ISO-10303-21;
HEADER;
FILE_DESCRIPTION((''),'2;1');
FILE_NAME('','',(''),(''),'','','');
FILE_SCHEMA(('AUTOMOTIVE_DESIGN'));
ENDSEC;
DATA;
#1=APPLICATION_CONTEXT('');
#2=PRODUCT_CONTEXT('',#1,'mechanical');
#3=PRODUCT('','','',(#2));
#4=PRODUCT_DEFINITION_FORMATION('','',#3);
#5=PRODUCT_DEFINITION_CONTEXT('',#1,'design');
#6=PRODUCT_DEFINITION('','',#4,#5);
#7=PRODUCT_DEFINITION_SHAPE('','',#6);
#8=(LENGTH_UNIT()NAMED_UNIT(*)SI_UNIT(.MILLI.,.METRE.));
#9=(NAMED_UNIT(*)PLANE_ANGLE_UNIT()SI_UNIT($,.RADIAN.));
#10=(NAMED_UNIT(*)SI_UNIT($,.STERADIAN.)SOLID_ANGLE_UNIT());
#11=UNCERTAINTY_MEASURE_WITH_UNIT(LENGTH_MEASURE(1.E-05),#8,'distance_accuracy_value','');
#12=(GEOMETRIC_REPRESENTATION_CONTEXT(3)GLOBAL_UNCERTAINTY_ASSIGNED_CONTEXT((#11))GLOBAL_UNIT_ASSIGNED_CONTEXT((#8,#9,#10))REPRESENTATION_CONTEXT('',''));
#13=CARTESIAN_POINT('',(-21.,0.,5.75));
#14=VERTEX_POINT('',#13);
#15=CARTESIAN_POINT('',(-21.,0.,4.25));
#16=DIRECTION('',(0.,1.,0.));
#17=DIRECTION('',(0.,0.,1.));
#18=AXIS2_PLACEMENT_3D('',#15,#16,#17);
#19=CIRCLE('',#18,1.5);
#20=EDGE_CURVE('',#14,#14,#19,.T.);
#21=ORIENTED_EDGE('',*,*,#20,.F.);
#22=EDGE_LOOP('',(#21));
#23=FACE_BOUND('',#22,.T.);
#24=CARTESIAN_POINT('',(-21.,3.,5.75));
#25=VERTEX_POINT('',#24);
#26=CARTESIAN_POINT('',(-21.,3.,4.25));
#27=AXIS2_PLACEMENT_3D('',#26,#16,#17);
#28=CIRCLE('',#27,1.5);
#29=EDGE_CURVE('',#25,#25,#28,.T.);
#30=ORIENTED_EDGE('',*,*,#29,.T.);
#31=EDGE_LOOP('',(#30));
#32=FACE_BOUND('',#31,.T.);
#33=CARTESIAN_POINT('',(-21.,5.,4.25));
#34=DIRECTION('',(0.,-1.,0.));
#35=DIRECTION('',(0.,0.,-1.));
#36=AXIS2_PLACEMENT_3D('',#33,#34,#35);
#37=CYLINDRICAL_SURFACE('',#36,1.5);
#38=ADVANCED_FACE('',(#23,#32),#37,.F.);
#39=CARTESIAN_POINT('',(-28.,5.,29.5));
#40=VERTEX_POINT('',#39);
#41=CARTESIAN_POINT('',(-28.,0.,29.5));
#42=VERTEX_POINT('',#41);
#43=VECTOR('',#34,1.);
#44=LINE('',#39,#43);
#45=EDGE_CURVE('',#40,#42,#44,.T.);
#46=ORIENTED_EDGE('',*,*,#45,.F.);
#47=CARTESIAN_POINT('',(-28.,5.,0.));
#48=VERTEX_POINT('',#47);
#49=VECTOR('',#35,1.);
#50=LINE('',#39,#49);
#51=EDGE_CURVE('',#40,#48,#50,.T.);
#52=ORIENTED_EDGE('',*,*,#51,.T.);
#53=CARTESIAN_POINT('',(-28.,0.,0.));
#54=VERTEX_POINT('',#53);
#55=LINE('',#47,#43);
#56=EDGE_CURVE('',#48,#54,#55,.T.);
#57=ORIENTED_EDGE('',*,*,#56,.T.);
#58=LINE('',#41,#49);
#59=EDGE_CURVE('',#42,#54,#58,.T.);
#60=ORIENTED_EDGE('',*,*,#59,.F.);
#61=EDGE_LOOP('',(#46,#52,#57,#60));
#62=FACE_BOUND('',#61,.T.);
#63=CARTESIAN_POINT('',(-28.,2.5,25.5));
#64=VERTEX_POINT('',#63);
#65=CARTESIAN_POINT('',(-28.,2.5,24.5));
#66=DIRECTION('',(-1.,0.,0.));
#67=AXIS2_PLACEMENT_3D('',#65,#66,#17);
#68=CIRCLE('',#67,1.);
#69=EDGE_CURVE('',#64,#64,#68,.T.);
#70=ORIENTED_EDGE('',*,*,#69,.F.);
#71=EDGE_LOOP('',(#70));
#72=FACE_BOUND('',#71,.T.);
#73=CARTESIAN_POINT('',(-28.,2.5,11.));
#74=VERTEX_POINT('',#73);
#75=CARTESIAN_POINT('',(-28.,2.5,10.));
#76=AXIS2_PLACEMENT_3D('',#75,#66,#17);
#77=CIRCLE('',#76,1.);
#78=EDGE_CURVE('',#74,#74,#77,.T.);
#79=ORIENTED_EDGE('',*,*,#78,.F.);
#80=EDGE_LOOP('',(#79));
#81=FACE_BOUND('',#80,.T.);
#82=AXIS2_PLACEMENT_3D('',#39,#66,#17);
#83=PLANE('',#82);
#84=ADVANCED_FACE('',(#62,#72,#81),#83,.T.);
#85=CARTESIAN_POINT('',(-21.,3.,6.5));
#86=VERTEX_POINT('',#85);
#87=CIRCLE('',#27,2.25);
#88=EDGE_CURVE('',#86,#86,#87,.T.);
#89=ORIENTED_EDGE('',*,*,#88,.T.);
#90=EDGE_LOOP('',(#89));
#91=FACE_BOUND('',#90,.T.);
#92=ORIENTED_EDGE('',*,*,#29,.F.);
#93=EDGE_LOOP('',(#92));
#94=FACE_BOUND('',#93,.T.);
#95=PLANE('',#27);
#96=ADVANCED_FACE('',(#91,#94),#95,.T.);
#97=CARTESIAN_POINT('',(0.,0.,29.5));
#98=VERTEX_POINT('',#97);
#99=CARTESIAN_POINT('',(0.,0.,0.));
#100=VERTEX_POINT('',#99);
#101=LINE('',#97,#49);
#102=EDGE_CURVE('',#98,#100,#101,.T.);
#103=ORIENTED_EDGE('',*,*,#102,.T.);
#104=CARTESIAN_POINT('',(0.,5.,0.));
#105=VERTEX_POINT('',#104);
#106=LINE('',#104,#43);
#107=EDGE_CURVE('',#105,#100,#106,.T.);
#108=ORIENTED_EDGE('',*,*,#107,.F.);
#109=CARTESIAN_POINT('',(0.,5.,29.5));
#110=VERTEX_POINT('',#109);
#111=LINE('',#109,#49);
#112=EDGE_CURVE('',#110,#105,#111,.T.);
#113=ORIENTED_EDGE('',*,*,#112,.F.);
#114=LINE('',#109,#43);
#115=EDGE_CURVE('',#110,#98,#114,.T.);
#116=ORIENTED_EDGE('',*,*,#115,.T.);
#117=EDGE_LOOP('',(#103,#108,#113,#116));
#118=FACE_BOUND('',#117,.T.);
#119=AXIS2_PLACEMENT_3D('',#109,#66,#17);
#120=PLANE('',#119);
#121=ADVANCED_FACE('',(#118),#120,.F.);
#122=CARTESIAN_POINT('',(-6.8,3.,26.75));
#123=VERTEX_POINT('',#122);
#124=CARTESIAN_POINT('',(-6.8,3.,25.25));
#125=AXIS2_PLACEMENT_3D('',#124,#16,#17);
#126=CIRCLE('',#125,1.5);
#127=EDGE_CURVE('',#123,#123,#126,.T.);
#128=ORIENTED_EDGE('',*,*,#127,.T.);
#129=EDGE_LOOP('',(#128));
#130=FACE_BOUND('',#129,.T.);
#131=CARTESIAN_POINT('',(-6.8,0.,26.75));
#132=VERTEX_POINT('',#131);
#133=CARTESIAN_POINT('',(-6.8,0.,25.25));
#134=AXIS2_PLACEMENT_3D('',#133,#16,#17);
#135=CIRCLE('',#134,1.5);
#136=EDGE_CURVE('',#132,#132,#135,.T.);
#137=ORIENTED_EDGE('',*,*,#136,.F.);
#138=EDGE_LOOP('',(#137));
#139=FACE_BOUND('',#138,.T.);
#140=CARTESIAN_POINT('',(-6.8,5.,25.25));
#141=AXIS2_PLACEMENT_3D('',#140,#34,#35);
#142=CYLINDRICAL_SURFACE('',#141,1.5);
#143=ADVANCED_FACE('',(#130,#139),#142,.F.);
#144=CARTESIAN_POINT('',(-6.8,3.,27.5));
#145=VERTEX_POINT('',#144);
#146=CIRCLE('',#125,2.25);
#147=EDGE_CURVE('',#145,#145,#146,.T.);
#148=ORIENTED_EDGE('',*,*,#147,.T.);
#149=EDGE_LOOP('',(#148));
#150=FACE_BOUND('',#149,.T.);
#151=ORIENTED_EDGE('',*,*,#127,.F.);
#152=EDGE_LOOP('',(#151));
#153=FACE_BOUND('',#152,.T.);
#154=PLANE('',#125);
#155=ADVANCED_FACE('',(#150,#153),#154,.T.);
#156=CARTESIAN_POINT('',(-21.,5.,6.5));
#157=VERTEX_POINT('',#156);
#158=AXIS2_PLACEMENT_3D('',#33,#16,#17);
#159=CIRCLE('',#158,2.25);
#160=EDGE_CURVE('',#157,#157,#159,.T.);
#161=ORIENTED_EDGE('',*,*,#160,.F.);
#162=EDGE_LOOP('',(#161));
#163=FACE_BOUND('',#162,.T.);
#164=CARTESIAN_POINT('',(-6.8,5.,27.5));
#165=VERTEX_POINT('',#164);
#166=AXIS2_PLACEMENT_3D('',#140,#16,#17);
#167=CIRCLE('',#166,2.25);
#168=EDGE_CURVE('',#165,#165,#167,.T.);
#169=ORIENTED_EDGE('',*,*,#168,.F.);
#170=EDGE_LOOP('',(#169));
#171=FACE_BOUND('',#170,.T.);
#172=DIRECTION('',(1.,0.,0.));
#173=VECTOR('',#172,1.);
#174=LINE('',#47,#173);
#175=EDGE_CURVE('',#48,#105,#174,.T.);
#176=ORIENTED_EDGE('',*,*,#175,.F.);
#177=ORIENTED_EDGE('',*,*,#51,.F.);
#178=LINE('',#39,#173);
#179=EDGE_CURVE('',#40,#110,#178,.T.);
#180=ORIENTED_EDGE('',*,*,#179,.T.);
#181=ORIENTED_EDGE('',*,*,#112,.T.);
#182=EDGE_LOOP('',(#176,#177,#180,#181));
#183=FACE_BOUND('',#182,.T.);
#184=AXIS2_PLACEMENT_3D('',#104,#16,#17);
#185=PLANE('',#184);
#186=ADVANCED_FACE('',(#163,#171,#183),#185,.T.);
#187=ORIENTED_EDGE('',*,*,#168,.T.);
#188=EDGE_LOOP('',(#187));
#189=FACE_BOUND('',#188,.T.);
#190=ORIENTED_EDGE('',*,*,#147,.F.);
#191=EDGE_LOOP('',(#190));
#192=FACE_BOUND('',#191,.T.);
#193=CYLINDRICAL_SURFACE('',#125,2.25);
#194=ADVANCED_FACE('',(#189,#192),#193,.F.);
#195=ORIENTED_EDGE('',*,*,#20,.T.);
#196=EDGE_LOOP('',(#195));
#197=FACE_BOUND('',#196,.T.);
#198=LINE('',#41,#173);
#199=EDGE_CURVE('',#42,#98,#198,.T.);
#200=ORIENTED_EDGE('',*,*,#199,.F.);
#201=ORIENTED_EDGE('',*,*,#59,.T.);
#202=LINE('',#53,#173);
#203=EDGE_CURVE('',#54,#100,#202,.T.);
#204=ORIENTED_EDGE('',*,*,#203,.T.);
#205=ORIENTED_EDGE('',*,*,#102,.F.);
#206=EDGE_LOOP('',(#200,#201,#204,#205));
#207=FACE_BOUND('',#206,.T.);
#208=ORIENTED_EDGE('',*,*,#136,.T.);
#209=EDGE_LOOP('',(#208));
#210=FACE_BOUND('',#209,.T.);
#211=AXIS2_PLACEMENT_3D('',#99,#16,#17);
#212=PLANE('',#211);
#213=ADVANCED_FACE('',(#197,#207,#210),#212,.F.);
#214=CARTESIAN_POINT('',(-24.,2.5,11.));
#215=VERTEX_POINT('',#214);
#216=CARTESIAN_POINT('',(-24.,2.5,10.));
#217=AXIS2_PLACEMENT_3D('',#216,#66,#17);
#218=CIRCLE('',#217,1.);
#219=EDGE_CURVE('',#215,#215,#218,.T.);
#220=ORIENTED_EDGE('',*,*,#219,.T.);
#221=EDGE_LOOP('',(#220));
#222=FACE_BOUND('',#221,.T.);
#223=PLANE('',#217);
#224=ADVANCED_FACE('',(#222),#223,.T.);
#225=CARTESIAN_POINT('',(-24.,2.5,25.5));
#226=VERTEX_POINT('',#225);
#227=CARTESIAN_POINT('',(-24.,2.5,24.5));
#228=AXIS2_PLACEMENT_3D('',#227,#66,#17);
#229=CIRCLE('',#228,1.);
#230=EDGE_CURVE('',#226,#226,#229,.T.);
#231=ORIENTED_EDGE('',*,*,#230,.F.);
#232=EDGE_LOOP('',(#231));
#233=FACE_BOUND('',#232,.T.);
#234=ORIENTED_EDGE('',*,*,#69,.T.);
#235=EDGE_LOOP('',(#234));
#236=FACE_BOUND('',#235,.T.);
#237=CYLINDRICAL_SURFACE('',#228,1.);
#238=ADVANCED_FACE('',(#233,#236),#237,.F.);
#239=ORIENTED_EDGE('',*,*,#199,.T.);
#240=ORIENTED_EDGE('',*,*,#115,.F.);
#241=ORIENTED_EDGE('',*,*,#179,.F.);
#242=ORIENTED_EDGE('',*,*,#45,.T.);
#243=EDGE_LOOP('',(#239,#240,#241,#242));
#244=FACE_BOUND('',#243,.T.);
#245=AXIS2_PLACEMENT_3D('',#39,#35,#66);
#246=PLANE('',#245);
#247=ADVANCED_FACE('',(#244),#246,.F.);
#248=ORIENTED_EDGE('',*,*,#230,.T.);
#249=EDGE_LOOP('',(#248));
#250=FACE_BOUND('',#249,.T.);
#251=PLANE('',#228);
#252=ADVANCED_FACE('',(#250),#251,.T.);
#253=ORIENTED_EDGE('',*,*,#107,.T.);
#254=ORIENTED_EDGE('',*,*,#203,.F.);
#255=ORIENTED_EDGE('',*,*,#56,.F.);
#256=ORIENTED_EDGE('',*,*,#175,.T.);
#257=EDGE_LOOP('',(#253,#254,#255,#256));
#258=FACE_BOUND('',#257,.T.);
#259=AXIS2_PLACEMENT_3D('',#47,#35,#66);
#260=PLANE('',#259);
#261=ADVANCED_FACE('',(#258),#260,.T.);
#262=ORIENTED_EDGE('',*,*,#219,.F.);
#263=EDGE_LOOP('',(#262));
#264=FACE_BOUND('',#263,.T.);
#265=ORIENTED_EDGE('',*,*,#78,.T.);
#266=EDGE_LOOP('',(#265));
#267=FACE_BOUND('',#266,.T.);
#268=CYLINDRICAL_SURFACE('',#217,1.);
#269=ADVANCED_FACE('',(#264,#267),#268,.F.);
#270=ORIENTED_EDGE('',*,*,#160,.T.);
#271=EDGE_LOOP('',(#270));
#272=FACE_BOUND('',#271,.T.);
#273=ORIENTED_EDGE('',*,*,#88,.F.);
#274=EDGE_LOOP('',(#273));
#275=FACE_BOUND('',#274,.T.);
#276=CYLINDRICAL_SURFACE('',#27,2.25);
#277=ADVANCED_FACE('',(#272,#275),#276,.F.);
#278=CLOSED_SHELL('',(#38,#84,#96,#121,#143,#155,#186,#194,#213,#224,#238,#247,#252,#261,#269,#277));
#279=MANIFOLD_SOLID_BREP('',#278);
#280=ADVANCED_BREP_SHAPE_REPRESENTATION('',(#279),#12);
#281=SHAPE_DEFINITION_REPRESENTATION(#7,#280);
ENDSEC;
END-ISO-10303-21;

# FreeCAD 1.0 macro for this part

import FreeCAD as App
import Part
import Sketcher

doc = App.newDocument("Part")
body = doc.addObject("PartDesign::Body", "Body")

# Sketch on XZ plane
sketch1 = doc.addObject("Sketcher::SketchObject", "Sketch")
body.addObject(sketch1)
sketch1.AttachmentSupport = (doc.XZ_Plane, [""])
sketch1.MapMode = "FlatFace"
sketch1.addGeometry(Part.LineSegment(App.Vector(-28, 0, 0), App.Vector(-28, 30, 0)), False)
sketch1.addGeometry(Part.LineSegment(App.Vector(-28, 30, 0), App.Vector(0, 30, 0)), False)
sketch1.addGeometry(Part.LineSegment(App.Vector(0, 30, 0), App.Vector(0, 0, 0)), False)
sketch1.addGeometry(Part.LineSegment(App.Vector(0, 0, 0), App.Vector(-28, 0, 0)), False)
sketch1.addConstraint(Sketcher.Constraint("Coincident", 0, 2, 1, 1))
sketch1.addConstraint(Sketcher.Constraint("Coincident", 1, 2, 2, 1))
sketch1.addConstraint(Sketcher.Constraint("Coincident", 2, 2, 3, 1))
sketch1.addConstraint(Sketcher.Constraint("Coincident", 3, 2, 0, 1))
sketch1.addConstraint(Sketcher.Constraint("Vertical", 0))
sketch1.addConstraint(Sketcher.Constraint("Horizontal", 1))
sketch1.addConstraint(Sketcher.Constraint("Vertical", 2))
sketch1.addConstraint(Sketcher.Constraint("Horizontal", 3))
sketch1.addConstraint(Sketcher.Constraint("Coincident", 2, 2, -1, 1))
sketch1.addConstraint(Sketcher.Constraint("DistanceX", 1, 1, 1, 2, 28.0))
sketch1.addConstraint(Sketcher.Constraint("DistanceY", 0, 1, 0, 2, 29.5))
pad1 = doc.addObject("PartDesign::Pad", "Pad")
body.addObject(pad1)
pad1.Profile = sketch1
pad1.Length = 5
pad1.Reversed = True

# Sketch on XZ plane
sketch2 = doc.addObject("Sketcher::SketchObject", "Sketch001")
body.addObject(sketch2)
sketch2.AttachmentSupport = (doc.XZ_Plane, [""])
sketch2.MapMode = "FlatFace"
sketch2.addGeometry(Part.Circle(App.Vector(-21, 4.2, 0), App.Vector(0, 0, 1), 1.5), False)
sketch2.addGeometry(Part.Circle(App.Vector(-6.8, 25.2, 0), App.Vector(0, 0, 1), 1.5), False)
sketch2.addConstraint(Sketcher.Constraint("Equal", 0, 1))
sketch2.addConstraint(Sketcher.Constraint("Diameter", 0, 3.0))
sketch2.addConstraint(Sketcher.Constraint("DistanceX", 0, 3, -1, 1, 21.0))
sketch2.addConstraint(Sketcher.Constraint("DistanceY", 0, 3, 1, 3, 21.0))
sketch2.addConstraint(Sketcher.Constraint("DistanceX", 1, 3, -1, 1, 6.8))
sketch2.addConstraint(Sketcher.Constraint("DistanceY", -1, 1, 0, 3, 4.25))
pocket1 = doc.addObject("PartDesign::Pocket", "Pocket")
body.addObject(pocket1)
pocket1.Profile = sketch2
pocket1.Type = "ThroughAll"

# Sketch on XZ plane
sketch3 = doc.addObject("Sketcher::SketchObject", "Sketch002")
body.addObject(sketch3)
sketch3.AttachmentSupport = (doc.XZ_Plane, [""])
sketch3.MapMode = "FlatFace"
sketch3.AttachmentOffset = App.Placement(App.Vector(0, 0, -5), App.Rotation())
sketch3.addGeometry(Part.Circle(App.Vector(-21, 4.2, 0), App.Vector(0, 0, 1), 2.2), False)
sketch3.addGeometry(Part.Circle(App.Vector(-6.8, 25.2, 0), App.Vector(0, 0, 1), 2.2), False)
sketch3.addConstraint(Sketcher.Constraint("Equal", 0, 1))
sketch3.addConstraint(Sketcher.Constraint("Diameter", 0, 4.5))
sketch3.addConstraint(Sketcher.Constraint("DistanceX", 0, 3, -1, 1, 21.0))
sketch3.addConstraint(Sketcher.Constraint("DistanceY", 0, 3, 1, 3, 21.0))
sketch3.addConstraint(Sketcher.Constraint("DistanceX", 1, 3, -1, 1, 6.8))
sketch3.addConstraint(Sketcher.Constraint("DistanceY", -1, 1, 0, 3, 4.25))
pocket2 = doc.addObject("PartDesign::Pocket", "Pocket001")
body.addObject(pocket2)
pocket2.Profile = sketch3
pocket2.Length = 2
pocket2.Reversed = True

# Sketch on YZ plane
sketch4 = doc.addObject("Sketcher::SketchObject", "Sketch003")
body.addObject(sketch4)
sketch4.AttachmentSupport = (doc.YZ_Plane, [""])
sketch4.MapMode = "FlatFace"
sketch4.AttachmentOffset = App.Placement(App.Vector(0, 0, -28), App.Rotation())
sketch4.addGeometry(Part.Circle(App.Vector(2.5, 10, 0), App.Vector(0, 0, 1), 1), False)
sketch4.addGeometry(Part.Circle(App.Vector(2.5, 24.5, 0), App.Vector(0, 0, 1), 1), False)
sketch4.addConstraint(Sketcher.Constraint("Equal", 0, 1))
sketch4.addConstraint(Sketcher.Constraint("Vertical", 0, 3, 1, 3))
sketch4.addConstraint(Sketcher.Constraint("Diameter", 0, 2.0))
sketch4.addConstraint(Sketcher.Constraint("DistanceY", -1, 1, 0, 3, 10.0))
sketch4.addConstraint(Sketcher.Constraint("DistanceX", -1, 1, 0, 3, 2.5))
sketch4.addConstraint(Sketcher.Constraint("DistanceY", -1, 1, 1, 3, 24.5))
pocket3 = doc.addObject("PartDesign::Pocket", "Pocket002")
body.addObject(pocket3)
pocket3.Profile = sketch4
pocket3.Length = 4
pocket3.Reversed = True

doc.recompute()
